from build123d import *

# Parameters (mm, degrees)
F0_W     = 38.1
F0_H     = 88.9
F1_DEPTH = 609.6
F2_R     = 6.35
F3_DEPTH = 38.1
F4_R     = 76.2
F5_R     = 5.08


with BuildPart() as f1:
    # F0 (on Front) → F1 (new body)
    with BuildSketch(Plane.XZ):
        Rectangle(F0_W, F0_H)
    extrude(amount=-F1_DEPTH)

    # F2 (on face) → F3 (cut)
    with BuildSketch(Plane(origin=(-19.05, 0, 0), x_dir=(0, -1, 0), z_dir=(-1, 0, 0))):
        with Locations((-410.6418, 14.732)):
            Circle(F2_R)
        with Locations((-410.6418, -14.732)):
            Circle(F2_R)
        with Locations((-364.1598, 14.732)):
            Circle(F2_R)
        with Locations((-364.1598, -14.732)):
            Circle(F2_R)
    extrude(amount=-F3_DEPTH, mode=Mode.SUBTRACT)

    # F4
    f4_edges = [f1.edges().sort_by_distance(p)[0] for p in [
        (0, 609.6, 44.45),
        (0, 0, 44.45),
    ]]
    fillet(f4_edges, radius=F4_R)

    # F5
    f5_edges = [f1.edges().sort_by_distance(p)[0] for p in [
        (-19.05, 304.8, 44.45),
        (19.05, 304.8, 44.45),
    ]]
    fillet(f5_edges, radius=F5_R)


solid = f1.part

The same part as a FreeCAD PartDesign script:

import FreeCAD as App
import Part
import Sketcher
Q = App.Units.Quantity


def edges_at(feature, points):
    """Names of the edges that pass closest to the given points."""
    edges = feature.Shape.Edges
    near = lambda p: min(range(len(edges)), key=lambda i: edges[i].distToShape(Part.Vertex(*p))[0])
    return sorted({f"Edge{near(p) + 1}" for p in points})

doc = App.newDocument("Part")
params = doc.addObject("Spreadsheet::Sheet", "Params")
for row, (alias, value) in enumerate([
    ("sketch1_width", "1.5 in"),
    ("sketch1_height", "3.5 in"),
    ("pad1_length", "24 in"),
    ("sketch2_diameter", "0.5 in"),
    ("pocket1_length", "1.5 in"),
    ("fillet_radius", "3 in"),
    ("fillet2_radius", "0.2 in"),
], start=1):
    params.set(f"A{row}", alias)
    params.set(f"B{row}", "=" + value)
    params.setAlias(f"B{row}", alias)

body = doc.addObject("PartDesign::Body", "Body")

sketch1 = doc.addObject("Sketcher::SketchObject", "Sketch")
body.addObject(sketch1)
sketch1.AttachmentSupport = (doc.XZ_Plane, [""])
sketch1.MapMode = "FlatFace"
sketch1.addGeometry([
    Part.LineSegment(App.Vector(-19, 44, 0), App.Vector(-19, -44, 0)),
    Part.LineSegment(App.Vector(-19, -44, 0), App.Vector(19, -44, 0)),
    Part.LineSegment(App.Vector(19, -44, 0), App.Vector(19, 44, 0)),
    Part.LineSegment(App.Vector(19, 44, 0), App.Vector(-19, 44, 0)),
], False)
sketch1.addConstraint([
    Sketcher.Constraint("Coincident", 0, 2, 1, 1),
    Sketcher.Constraint("Coincident", 1, 2, 2, 1),
    Sketcher.Constraint("Coincident", 2, 2, 3, 1),
    Sketcher.Constraint("Coincident", 3, 2, 0, 1),
    Sketcher.Constraint("Vertical", 0),
    Sketcher.Constraint("Horizontal", 1),
    Sketcher.Constraint("Vertical", 2),
    Sketcher.Constraint("Horizontal", 3),
    Sketcher.Constraint("Symmetric", 0, 2, 2, 2, -1, 1),
    Sketcher.Constraint("DistanceX", 1, 1, 1, 2, Q("1.5 in")),
    Sketcher.Constraint("DistanceY", 0, 2, 0, 1, Q("3.5 in")),
])
sketch1.setExpression("Constraints[9]", "Params.sketch1_width")
sketch1.setExpression("Constraints[10]", "Params.sketch1_height")
pad1 = doc.addObject("PartDesign::Pad", "Pad")
body.addObject(pad1)
pad1.Profile = sketch1
pad1.setExpression("Length", "Params.pad1_length")
pad1.Reversed = True

sketch2 = doc.addObject("Sketcher::SketchObject", "Sketch001")
body.addObject(sketch2)
sketch2.AttachmentSupport = (doc.YZ_Plane, [""])
sketch2.MapMode = "FlatFace"
sketch2.AttachmentOffset = App.Placement(App.Vector(0, 0, -0.75 * 25.4), App.Rotation())
sketch2.addGeometry([
    Part.Circle(App.Vector(411, 15, 0), App.Vector(0, 0, 1), 6),
    Part.Circle(App.Vector(411, -15, 0), App.Vector(0, 0, 1), 6),
    Part.Circle(App.Vector(364, 15, 0), App.Vector(0, 0, 1), 6),
    Part.Circle(App.Vector(364, -15, 0), App.Vector(0, 0, 1), 6),
], False)
sketch2.addConstraint([
    Sketcher.Constraint("Equal", 0, 1),
    Sketcher.Constraint("Equal", 1, 2),
    Sketcher.Constraint("Equal", 2, 3),
    Sketcher.Constraint("Symmetric", 0, 3, 1, 3, -1),
    Sketcher.Constraint("Symmetric", 2, 3, 3, 3, -1),
    Sketcher.Constraint("Horizontal", 0, 3, 2, 3),
    Sketcher.Constraint("Diameter", 0, Q("0.5 in")),
    Sketcher.Constraint("DistanceY", -1, 1, 0, 3, Q("0.58 in")),
    Sketcher.Constraint("DistanceX", 2, 3, 0, 3, Q("1.83 in")),
    Sketcher.Constraint("DistanceX", -1, 1, 0, 3, Q("16.167 in")),
])
sketch2.setExpression("Constraints[6]", "Params.sketch2_diameter")
pocket1 = doc.addObject("PartDesign::Pocket", "Pocket")
body.addObject(pocket1)
pocket1.Profile = sketch2
pocket1.setExpression("Length", "Params.pocket1_length")
pocket1.Reversed = True
doc.recompute()

fillet = doc.addObject("PartDesign::Fillet", "Fillet")
body.addObject(fillet)
fillet.Base = (pocket1, edges_at(pocket1, [(0, 609.6, 44.45), (0, 0, 44.45)]))
fillet.setExpression("Radius", "Params.fillet_radius")
doc.recompute()

fillet2 = doc.addObject("PartDesign::Fillet", "Fillet001")
body.addObject(fillet2)
fillet2.Base = (fillet, edges_at(fillet, [(-19.05, 304.8, 44.45), (19.05, 304.8, 44.45)]))
fillet2.setExpression("Radius", "Params.fillet2_radius")

doc.recompute()
